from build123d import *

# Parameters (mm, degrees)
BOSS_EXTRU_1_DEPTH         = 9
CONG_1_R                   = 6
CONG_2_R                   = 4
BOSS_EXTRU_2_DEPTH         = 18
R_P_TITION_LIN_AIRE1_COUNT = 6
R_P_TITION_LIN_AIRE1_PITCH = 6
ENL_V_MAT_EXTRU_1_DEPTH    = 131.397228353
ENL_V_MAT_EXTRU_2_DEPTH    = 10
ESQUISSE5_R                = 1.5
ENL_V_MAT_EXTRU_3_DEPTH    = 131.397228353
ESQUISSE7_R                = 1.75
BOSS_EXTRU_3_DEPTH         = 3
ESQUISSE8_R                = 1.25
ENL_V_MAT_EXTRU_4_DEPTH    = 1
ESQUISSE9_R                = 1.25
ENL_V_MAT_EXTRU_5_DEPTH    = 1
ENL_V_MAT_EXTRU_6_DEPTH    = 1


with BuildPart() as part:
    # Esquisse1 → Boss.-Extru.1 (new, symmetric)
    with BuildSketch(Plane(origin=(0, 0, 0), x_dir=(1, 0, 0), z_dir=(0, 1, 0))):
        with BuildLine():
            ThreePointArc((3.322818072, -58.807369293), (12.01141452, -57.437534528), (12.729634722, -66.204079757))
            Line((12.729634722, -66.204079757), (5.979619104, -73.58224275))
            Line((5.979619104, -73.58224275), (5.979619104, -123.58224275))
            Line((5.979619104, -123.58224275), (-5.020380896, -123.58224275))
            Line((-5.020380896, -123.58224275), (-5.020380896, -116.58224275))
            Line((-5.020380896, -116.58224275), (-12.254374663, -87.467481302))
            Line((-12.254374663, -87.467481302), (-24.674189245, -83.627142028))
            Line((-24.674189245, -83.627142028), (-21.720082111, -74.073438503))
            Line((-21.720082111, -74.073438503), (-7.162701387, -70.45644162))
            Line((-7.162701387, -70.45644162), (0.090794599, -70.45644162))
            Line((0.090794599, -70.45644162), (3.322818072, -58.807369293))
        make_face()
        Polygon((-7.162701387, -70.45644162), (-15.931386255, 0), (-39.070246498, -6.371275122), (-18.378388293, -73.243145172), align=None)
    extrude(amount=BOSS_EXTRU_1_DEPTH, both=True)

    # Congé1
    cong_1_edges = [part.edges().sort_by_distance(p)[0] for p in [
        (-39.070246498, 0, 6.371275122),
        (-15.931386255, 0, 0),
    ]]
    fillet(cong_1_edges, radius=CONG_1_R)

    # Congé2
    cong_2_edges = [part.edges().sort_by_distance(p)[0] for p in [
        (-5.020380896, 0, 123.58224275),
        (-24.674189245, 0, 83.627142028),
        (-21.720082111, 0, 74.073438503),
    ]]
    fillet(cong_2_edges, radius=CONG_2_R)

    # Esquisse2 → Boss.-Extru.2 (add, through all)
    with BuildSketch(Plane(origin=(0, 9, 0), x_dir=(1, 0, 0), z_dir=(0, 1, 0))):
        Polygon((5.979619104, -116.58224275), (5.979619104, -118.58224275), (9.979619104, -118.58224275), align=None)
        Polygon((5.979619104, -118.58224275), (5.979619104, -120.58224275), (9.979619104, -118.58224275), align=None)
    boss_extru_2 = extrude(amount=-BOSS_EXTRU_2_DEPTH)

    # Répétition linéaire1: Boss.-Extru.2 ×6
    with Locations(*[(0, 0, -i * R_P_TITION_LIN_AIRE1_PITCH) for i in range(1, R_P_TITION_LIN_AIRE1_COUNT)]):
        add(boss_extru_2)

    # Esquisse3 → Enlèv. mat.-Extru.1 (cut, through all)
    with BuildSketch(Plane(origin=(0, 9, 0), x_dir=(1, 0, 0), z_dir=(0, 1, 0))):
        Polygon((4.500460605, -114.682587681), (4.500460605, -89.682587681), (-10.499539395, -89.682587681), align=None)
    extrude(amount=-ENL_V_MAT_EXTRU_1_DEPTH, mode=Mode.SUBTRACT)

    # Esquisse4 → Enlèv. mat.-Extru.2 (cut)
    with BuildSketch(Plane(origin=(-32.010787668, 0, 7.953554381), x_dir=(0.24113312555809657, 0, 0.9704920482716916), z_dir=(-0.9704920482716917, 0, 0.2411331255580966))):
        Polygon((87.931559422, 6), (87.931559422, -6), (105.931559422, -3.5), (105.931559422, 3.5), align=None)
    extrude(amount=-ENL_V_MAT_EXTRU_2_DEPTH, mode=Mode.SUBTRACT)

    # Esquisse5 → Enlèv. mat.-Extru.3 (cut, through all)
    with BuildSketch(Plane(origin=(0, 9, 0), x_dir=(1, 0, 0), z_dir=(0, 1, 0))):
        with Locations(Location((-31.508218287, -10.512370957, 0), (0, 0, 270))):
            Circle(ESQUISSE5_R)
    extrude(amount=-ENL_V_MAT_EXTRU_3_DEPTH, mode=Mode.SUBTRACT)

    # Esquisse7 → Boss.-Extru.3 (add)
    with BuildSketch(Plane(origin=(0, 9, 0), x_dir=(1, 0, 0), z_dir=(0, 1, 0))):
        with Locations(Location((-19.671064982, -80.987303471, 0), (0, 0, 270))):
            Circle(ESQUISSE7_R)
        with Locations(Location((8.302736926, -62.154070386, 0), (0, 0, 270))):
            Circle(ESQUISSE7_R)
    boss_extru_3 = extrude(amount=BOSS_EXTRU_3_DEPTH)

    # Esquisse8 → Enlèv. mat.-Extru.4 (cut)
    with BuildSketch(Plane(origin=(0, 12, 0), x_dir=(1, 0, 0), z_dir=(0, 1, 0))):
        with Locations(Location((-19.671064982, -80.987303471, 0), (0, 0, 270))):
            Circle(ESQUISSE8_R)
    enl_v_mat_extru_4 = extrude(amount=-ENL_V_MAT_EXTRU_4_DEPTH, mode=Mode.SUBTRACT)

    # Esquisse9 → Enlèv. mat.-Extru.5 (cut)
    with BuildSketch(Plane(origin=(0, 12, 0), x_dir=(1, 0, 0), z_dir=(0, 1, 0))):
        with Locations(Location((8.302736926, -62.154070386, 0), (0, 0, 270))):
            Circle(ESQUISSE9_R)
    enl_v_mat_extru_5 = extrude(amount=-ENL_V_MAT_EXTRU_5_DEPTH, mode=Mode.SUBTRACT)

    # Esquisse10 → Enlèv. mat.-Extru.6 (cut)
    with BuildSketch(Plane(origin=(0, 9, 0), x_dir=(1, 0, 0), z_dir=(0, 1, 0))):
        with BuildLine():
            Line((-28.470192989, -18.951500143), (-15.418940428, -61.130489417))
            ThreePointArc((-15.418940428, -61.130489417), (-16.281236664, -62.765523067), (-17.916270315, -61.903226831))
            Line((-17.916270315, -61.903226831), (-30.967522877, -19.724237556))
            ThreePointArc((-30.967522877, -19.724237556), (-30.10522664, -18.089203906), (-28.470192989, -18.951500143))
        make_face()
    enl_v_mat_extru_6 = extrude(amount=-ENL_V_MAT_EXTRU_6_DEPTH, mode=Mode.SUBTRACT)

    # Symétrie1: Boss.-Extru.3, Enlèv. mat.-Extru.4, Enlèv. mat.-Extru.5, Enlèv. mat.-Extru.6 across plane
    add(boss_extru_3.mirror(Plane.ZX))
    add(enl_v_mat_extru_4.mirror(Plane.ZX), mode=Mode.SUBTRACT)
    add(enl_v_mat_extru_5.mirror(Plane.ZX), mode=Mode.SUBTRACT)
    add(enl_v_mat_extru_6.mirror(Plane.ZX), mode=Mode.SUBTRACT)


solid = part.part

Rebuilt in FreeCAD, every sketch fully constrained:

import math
import FreeCAD as App
import Part
import Sketcher
Q = App.Units.Quantity


def edges_at(feature, points):
    """Names of the edges that pass closest to the given points."""
    edges = feature.Shape.Edges
    near = lambda p: min(range(len(edges)), key=lambda i: edges[i].distToShape(Part.Vertex(*p))[0])
    return sorted({f"Edge{near(p) + 1}" for p in points})


def add_polygon(sketch, points):
    """Adds a closed chain of lines whose ends are joined by coincident constraints."""
    first, n = sketch.GeometryCount, len(points)
    for a, b in zip(points, points[1:] + points[:1]):
        sketch.addGeometry(Part.LineSegment(App.Vector(*a, 0), App.Vector(*b, 0)), False)
    for i in range(n):
        sketch.addConstraint(Sketcher.Constraint("Coincident", first + i, 2, first + (i + 1) % n, 1))

doc = App.newDocument("Part")
body = doc.addObject("PartDesign::Body", "Body")

# Sketch on XZ plane
sketch1 = body.newObject("Sketcher::SketchObject", "Sketch")
sketch1.AttachmentSupport = (doc.getObject("XZ_Plane"), [""])
sketch1.MapMode = "FlatFace"
sketch1.addGeometry(Part.ArcOfCircle(Part.Circle(App.Vector(8.302737, 62.15407, 0), App.Vector(0, 0, 1), 6), math.radians(-146.097349), math.radians(42.454271)), False)
sketch1.addGeometry(Part.LineSegment(App.Vector(3.322818, 58.807369, 0), App.Vector(0.090795, 70.456442, 0)), False)
sketch1.addGeometry(Part.LineSegment(App.Vector(0.090795, 70.456442, 0), App.Vector(-7.162701, 70.456442, 0)), False)
sketch1.addGeometry(Part.LineSegment(App.Vector(-7.162701, 70.456442, 0), App.Vector(-15.931386, 0, 0)), False)
sketch1.addGeometry(Part.LineSegment(App.Vector(-15.931386, 0, 0), App.Vector(-39.070246, 6.371275, 0)), False)
sketch1.addGeometry(Part.LineSegment(App.Vector(-39.070246, 6.371275, 0), App.Vector(-18.378388, 73.243145, 0)), False)
sketch1.addGeometry(Part.LineSegment(App.Vector(-18.378388, 73.243145, 0), App.Vector(-21.720082, 74.073439, 0)), False)
sketch1.addGeometry(Part.LineSegment(App.Vector(-21.720082, 74.073439, 0), App.Vector(-24.674189, 83.627142, 0)), False)
sketch1.addGeometry(Part.LineSegment(App.Vector(-24.674189, 83.627142, 0), App.Vector(-12.254375, 87.467481, 0)), False)
sketch1.addGeometry(Part.LineSegment(App.Vector(-12.254375, 87.467481, 0), App.Vector(-5.020381, 116.582243, 0)), False)
sketch1.addGeometry(Part.LineSegment(App.Vector(-5.020381, 116.582243, 0), App.Vector(-5.020381, 123.582243, 0)), False)
sketch1.addGeometry(Part.LineSegment(App.Vector(-5.020381, 123.582243, 0), App.Vector(5.979619, 123.582243, 0)), False)
sketch1.addGeometry(Part.LineSegment(App.Vector(5.979619, 123.582243, 0), App.Vector(5.979619, 73.582243, 0)), False)
sketch1.addGeometry(Part.LineSegment(App.Vector(5.979619, 73.582243, 0), App.Vector(12.729635, 66.20408, 0)), False)
sketch1.addConstraint(Sketcher.Constraint("Coincident", 0, 1, 1, 1))
sketch1.addConstraint(Sketcher.Constraint("Coincident", 1, 2, 2, 1))
sketch1.addConstraint(Sketcher.Constraint("Coincident", 2, 2, 3, 1))
sketch1.addConstraint(Sketcher.Constraint("Coincident", 3, 2, 4, 1))
sketch1.addConstraint(Sketcher.Constraint("Coincident", 4, 2, 5, 1))
sketch1.addConstraint(Sketcher.Constraint("Coincident", 5, 2, 6, 1))
sketch1.addConstraint(Sketcher.Constraint("Coincident", 6, 2, 7, 1))
sketch1.addConstraint(Sketcher.Constraint("Coincident", 7, 2, 8, 1))
sketch1.addConstraint(Sketcher.Constraint("Coincident", 8, 2, 9, 1))
sketch1.addConstraint(Sketcher.Constraint("Coincident", 9, 2, 10, 1))
sketch1.addConstraint(Sketcher.Constraint("Coincident", 10, 2, 11, 1))
sketch1.addConstraint(Sketcher.Constraint("Coincident", 11, 2, 12, 1))
sketch1.addConstraint(Sketcher.Constraint("Coincident", 12, 2, 13, 1))
sketch1.addConstraint(Sketcher.Constraint("Tangent", 13, 2, 0, 2))
sketch1.addConstraint(Sketcher.Constraint("Horizontal", 2))
sketch1.addConstraint(Sketcher.Constraint("Vertical", 10))
sketch1.addConstraint(Sketcher.Constraint("Horizontal", 11))
sketch1.addConstraint(Sketcher.Constraint("Vertical", 12))
sketch1.addConstraint(Sketcher.Constraint("PointOnObject", 3, 2, -1))
sketch1.addConstraint(Sketcher.Constraint("Perpendicular", 7, 8))
sketch1.addConstraint(Sketcher.Constraint("Perpendicular", 6, 9))
sketch1.addConstraint(Sketcher.Constraint("Equal", 7, 13))
sketch1.addConstraint(Sketcher.Constraint("Radius", 0, Q("6 mm")))
sketch1.addConstraint(Sketcher.Constraint("DistanceX", 11, 1, 11, 2, Q("11 mm")))
sketch1.addConstraint(Sketcher.Constraint("DistanceY", 10, 1, 10, 2, Q("7 mm")))
sketch1.addConstraint(Sketcher.Constraint("DistanceY", 12, 2, 12, 1, Q("50 mm")))
sketch1.addConstraint(Sketcher.Constraint("Distance", 3, Q("71 mm")))
sketch1.addConstraint(Sketcher.Constraint("Distance", 4, Q("24 mm")))
sketch1.addConstraint(Sketcher.Constraint("Distance", 5, Q("70 mm")))
sketch1.addConstraint(Sketcher.Constraint("Distance", 7, Q("10 mm")))
sketch1.addConstraint(Sketcher.Constraint("Distance", 8, Q("13 mm")))
sketch1.addConstraint(Sketcher.Constraint("Distance", 9, Q("30 mm")))
sketch1.addConstraint(Sketcher.Constraint("Distance", 6, Q("3.443299 mm")))
sketch1.addConstraint(Sketcher.Constraint("DistanceX", 2, 2, -1, 1, Q("7.162701 mm")))
sketch1.addConstraint(Sketcher.Constraint("DistanceY", 0, 1, 0, 3, Q("3.346701 mm")))
sketch1.addConstraint(Sketcher.Constraint("DistanceX", 6, 2, 0, 1, Q("25.0429 mm")))
sketch1.addConstraint(Sketcher.Constraint("DistanceX", 7, 2, 5, 2, Q("6.295801 mm")))
sketch1.addConstraint(Sketcher.Constraint("DistanceY", 2, 2, 7, 2, Q("13.1707 mm")))
sketch1.addConstraint(Sketcher.Constraint("DistanceY", 7, 2, 9, 2, Q("32.955101 mm")))
sketch1.addConstraint(Sketcher.Constraint("Distance", 1, Q("12.089122 mm")))
sketch1.addConstraint(Sketcher.Constraint("DistanceX", 2, 2, 2, 1, Q("7.253496 mm")))
sketch1.addConstraint(Sketcher.Constraint("DistanceY", -1, 1, 0, 3, Q("62.15407 mm")))
pad1 = body.newObject("PartDesign::Pad", "Pad")
pad1.Profile = sketch1
pad1.Length = 18
pad1.Midplane = True
doc.recompute()

fillet = body.newObject("PartDesign::Fillet", "Fillet")
fillet.Base = (pad1, edges_at(pad1, [(-39.07, 0, 6.371), (-15.931, 0, 0)]))
fillet.Radius = 6
doc.recompute()

fillet2 = body.newObject("PartDesign::Fillet", "Fillet001")
fillet2.Base = (fillet, edges_at(fillet, [(-5.02, 0, 123.582), (-24.674, 0, 83.627), (-21.72, 0, 74.073)]))
fillet2.Radius = 4

# Sketch on XZ plane
sketch2 = body.newObject("Sketcher::SketchObject", "Sketch001")
sketch2.AttachmentSupport = (doc.getObject("XZ_Plane"), [""])
sketch2.MapMode = "FlatFace"
sketch2.AttachmentOffset = App.Placement(App.Vector(0, 0, -9), App.Rotation())
add_polygon(sketch2, [(5.979619, 116.582243), (5.979619, 120.582243), (9.979619, 118.582243)])  # lines 0-2
sketch2.addConstraint(Sketcher.Constraint("Vertical", 0))
sketch2.addConstraint(Sketcher.Constraint("Equal", 1, 2))
sketch2.addConstraint(Sketcher.Constraint("DistanceY", 0, 1, 0, 2, Q("4 mm")))
sketch2.addConstraint(Sketcher.Constraint("DistanceX", 0, 2, 1, 2, Q("4 mm")))
sketch2.addConstraint(Sketcher.Constraint("DistanceX", -1, 1, 0, 2, Q("5.979619 mm")))
sketch2.addConstraint(Sketcher.Constraint("DistanceY", -1, 1, 0, 2, Q("120.582243 mm")))
pad2 = body.newObject("PartDesign::Pad", "Pad001")
pad2.Profile = sketch2
pad2.Length = 18
doc.recompute()

linearpattern = body.newObject("PartDesign::LinearPattern", "LinearPattern")
linearpattern.Originals = [pad2]
linearpattern.Direction = (doc.getObject("Z_Axis"), [""])
linearpattern.Mode = "offset"
linearpattern.Offset = 6
linearpattern.Occurrences = 6
linearpattern.Reversed = True
body.Tip = linearpattern

# Sketch on XZ plane
sketch3 = body.newObject("Sketcher::SketchObject", "Sketch002")
sketch3.AttachmentSupport = (doc.getObject("XZ_Plane"), [""])
sketch3.MapMode = "FlatFace"
sketch3.AttachmentOffset = App.Placement(App.Vector(0, 0, -9), App.Rotation())
add_polygon(sketch3, [(4.500461, 114.682588), (4.500461, 89.682588), (-10.499539, 89.682588)])  # lines 0-2
sketch3.addConstraint(Sketcher.Constraint("Vertical", 0))
sketch3.addConstraint(Sketcher.Constraint("Horizontal", 1))
sketch3.addConstraint(Sketcher.Constraint("DistanceX", 1, 2, 1, 1, Q("15 mm")))
sketch3.addConstraint(Sketcher.Constraint("DistanceY", 0, 2, 0, 1, Q("25 mm")))
sketch3.addConstraint(Sketcher.Constraint("DistanceX", -1, 1, 0, 2, Q("4.500461 mm")))
sketch3.addConstraint(Sketcher.Constraint("DistanceY", -1, 1, 0, 2, Q("89.682588 mm")))
pocket1 = body.newObject("PartDesign::Pocket", "Pocket")
pocket1.Profile = sketch3
pocket1.Type = "ThroughAll"
pocket1.Reversed = True

# Sketch on an angled plane
sketch4 = body.newObject("Sketcher::SketchObject", "Sketch003")
sketch4.Placement = App.Placement(App.Vector(-32.010788, 0, 7.953554), App.Rotation(App.Vector(0.241133126, 0, 0.970492048), App.Vector(0, 1, 0), App.Vector(-0.970492048, 0, 0.241133126), "ZXY"))
add_polygon(sketch4, [(87.931559, 6), (87.931559, -6), (105.931559, -3.5), (105.931559, 3.5)])  # lines 0-3
sketch4.addConstraint(Sketcher.Constraint("Vertical", 0))
sketch4.addConstraint(Sketcher.Constraint("Vertical", 2))
sketch4.addConstraint(Sketcher.Constraint("Equal", 1, 3))
sketch4.addConstraint(Sketcher.Constraint("DistanceY", 0, 2, 0, 1, Q("12 mm")))
sketch4.addConstraint(Sketcher.Constraint("DistanceY", 2, 1, 2, 2, Q("7 mm")))
sketch4.addConstraint(Sketcher.Constraint("DistanceY", 0, 2, -1, 1, Q("6 mm")))
sketch4.addConstraint(Sketcher.Constraint("DistanceX", 0, 2, 1, 2, Q("18 mm")))
sketch4.addConstraint(Sketcher.Constraint("DistanceX", -1, 1, 0, 2, Q("87.931559 mm")))
pocket2 = body.newObject("PartDesign::Pocket", "Pocket001")
pocket2.Profile = sketch4
pocket2.Length = 10

# Sketch on XZ plane
sketch5 = body.newObject("Sketcher::SketchObject", "Sketch004")
sketch5.AttachmentSupport = (doc.getObject("XZ_Plane"), [""])
sketch5.MapMode = "FlatFace"
sketch5.AttachmentOffset = App.Placement(App.Vector(0, 0, -9), App.Rotation())
sketch5.addGeometry(Part.Circle(App.Vector(-31.508218, 10.512371, 0), App.Vector(0, 0, 1), 1.5), False)
sketch5.addConstraint(Sketcher.Constraint("Diameter", 0, Q("3 mm")))
sketch5.addConstraint(Sketcher.Constraint("DistanceX", 0, 3, -1, 1, Q("31.508218 mm")))
sketch5.addConstraint(Sketcher.Constraint("DistanceY", -1, 1, 0, 3, Q("10.512371 mm")))
pocket3 = body.newObject("PartDesign::Pocket", "Pocket002")
pocket3.Profile = sketch5
pocket3.Type = "ThroughAll"
pocket3.Reversed = True

# Sketch on XZ plane
sketch6 = body.newObject("Sketcher::SketchObject", "Sketch005")
sketch6.AttachmentSupport = (doc.getObject("XZ_Plane"), [""])
sketch6.MapMode = "FlatFace"
sketch6.AttachmentOffset = App.Placement(App.Vector(0, 0, -9), App.Rotation())
sketch6.addGeometry(Part.Circle(App.Vector(-19.671065, 80.987303, 0), App.Vector(0, 0, 1), 1.75), False)
sketch6.addGeometry(Part.Circle(App.Vector(8.302737, 62.15407, 0), App.Vector(0, 0, 1), 1.75), False)
sketch6.addConstraint(Sketcher.Constraint("Equal", 0, 1))
sketch6.addConstraint(Sketcher.Constraint("Diameter", 0, Q("3.5 mm")))
sketch6.addConstraint(Sketcher.Constraint("DistanceX", 0, 3, 1, 3, Q("27.973802 mm")))
sketch6.addConstraint(Sketcher.Constraint("DistanceY", -1, 1, 1, 3, Q("62.15407 mm")))
sketch6.addConstraint(Sketcher.Constraint("DistanceX", 0, 3, -1, 1, Q("19.671065 mm")))
sketch6.addConstraint(Sketcher.Constraint("DistanceY", -1, 1, 0, 3, Q("80.987303 mm")))
pad3 = body.newObject("PartDesign::Pad", "Pad002")
pad3.Profile = sketch6
pad3.Length = 3
pad3.Reversed = True

# Sketch on XZ plane
sketch7 = body.newObject("Sketcher::SketchObject", "Sketch006")
sketch7.AttachmentSupport = (doc.getObject("XZ_Plane"), [""])
sketch7.MapMode = "FlatFace"
sketch7.AttachmentOffset = App.Placement(App.Vector(0, 0, -12), App.Rotation())
sketch7.addGeometry(Part.Circle(App.Vector(-19.671065, 80.987303, 0), App.Vector(0, 0, 1), 1.25), False)
sketch7.addConstraint(Sketcher.Constraint("Diameter", 0, Q("2.5 mm")))
sketch7.addConstraint(Sketcher.Constraint("DistanceX", 0, 3, -1, 1, Q("19.671065 mm")))
sketch7.addConstraint(Sketcher.Constraint("DistanceY", -1, 1, 0, 3, Q("80.987303 mm")))
pocket4 = body.newObject("PartDesign::Pocket", "Pocket003")
pocket4.Profile = sketch7
pocket4.Length = 1
pocket4.Reversed = True

# Sketch on XZ plane
sketch8 = body.newObject("Sketcher::SketchObject", "Sketch007")
sketch8.AttachmentSupport = (doc.getObject("XZ_Plane"), [""])
sketch8.MapMode = "FlatFace"
sketch8.AttachmentOffset = App.Placement(App.Vector(0, 0, -12), App.Rotation())
sketch8.addGeometry(Part.Circle(App.Vector(8.302737, 62.15407, 0), App.Vector(0, 0, 1), 1.25), False)
sketch8.addConstraint(Sketcher.Constraint("Diameter", 0, Q("2.5 mm")))
sketch8.addConstraint(Sketcher.Constraint("DistanceY", -1, 1, 0, 3, Q("62.15407 mm")))
sketch8.addConstraint(Sketcher.Constraint("DistanceX", -1, 1, 0, 3, Q("8.302737 mm")))
pocket5 = body.newObject("PartDesign::Pocket", "Pocket004")
pocket5.Profile = sketch8
pocket5.Length = 1
pocket5.Reversed = True

# Sketch on XZ plane
sketch9 = body.newObject("Sketcher::SketchObject", "Sketch008")
sketch9.AttachmentSupport = (doc.getObject("XZ_Plane"), [""])
sketch9.MapMode = "FlatFace"
sketch9.AttachmentOffset = App.Placement(App.Vector(0, 0, -9), App.Rotation())
sketch9.addGeometry(Part.LineSegment(App.Vector(-15.41894, 61.130489, 0), App.Vector(-28.470193, 18.9515, 0)), False)
sketch9.addGeometry(Part.ArcOfCircle(Part.Circle(App.Vector(-29.718858, 19.337869, 0), App.Vector(0, 0, 1), 1.307075), math.radians(162.806602), math.radians(342.806602)), False)
sketch9.addGeometry(Part.LineSegment(App.Vector(-30.967523, 19.724238, 0), App.Vector(-17.91627, 61.903227, 0)), False)
sketch9.addGeometry(Part.ArcOfCircle(Part.Circle(App.Vector(-16.667605, 61.516858, 0), App.Vector(0, 0, 1), 1.307075), math.radians(-17.193398), math.radians(162.806602)), False)
sketch9.addConstraint(Sketcher.Constraint("Tangent", 0, 2, 1, 2))
sketch9.addConstraint(Sketcher.Constraint("Tangent", 1, 1, 2, 1))
sketch9.addConstraint(Sketcher.Constraint("Tangent", 2, 2, 3, 2))
sketch9.addConstraint(Sketcher.Constraint("Tangent", 3, 1, 0, 1))
sketch9.addConstraint(Sketcher.Constraint("Equal", 1, 3))
sketch9.addConstraint(Sketcher.Constraint("Radius", 1, Q("1.307075 mm")))
sketch9.addConstraint(Sketcher.Constraint("DistanceY", -1, 1, 0, 2, Q("18.9515 mm")))
sketch9.addConstraint(Sketcher.Constraint("DistanceY", -1, 1, 1, 3, Q("19.337869 mm")))
sketch9.addConstraint(Sketcher.Constraint("DistanceY", -1, 1, 3, 3, Q("61.516858 mm")))
sketch9.addConstraint(Sketcher.Constraint("DistanceX", 2, 2, -1, 1, Q("17.91627 mm")))
pocket6 = body.newObject("PartDesign::Pocket", "Pocket005")
pocket6.Profile = sketch9
pocket6.Length = 1
pocket6.Reversed = True
doc.recompute()

mirrored = body.newObject("PartDesign::Mirrored", "Mirrored")
mirrored.Originals = [pad3, pocket4, pocket5, pocket6]
mirrored.MirrorPlane = (doc.getObject("XZ_Plane"), [""])
body.Tip = mirrored

doc.recompute()
